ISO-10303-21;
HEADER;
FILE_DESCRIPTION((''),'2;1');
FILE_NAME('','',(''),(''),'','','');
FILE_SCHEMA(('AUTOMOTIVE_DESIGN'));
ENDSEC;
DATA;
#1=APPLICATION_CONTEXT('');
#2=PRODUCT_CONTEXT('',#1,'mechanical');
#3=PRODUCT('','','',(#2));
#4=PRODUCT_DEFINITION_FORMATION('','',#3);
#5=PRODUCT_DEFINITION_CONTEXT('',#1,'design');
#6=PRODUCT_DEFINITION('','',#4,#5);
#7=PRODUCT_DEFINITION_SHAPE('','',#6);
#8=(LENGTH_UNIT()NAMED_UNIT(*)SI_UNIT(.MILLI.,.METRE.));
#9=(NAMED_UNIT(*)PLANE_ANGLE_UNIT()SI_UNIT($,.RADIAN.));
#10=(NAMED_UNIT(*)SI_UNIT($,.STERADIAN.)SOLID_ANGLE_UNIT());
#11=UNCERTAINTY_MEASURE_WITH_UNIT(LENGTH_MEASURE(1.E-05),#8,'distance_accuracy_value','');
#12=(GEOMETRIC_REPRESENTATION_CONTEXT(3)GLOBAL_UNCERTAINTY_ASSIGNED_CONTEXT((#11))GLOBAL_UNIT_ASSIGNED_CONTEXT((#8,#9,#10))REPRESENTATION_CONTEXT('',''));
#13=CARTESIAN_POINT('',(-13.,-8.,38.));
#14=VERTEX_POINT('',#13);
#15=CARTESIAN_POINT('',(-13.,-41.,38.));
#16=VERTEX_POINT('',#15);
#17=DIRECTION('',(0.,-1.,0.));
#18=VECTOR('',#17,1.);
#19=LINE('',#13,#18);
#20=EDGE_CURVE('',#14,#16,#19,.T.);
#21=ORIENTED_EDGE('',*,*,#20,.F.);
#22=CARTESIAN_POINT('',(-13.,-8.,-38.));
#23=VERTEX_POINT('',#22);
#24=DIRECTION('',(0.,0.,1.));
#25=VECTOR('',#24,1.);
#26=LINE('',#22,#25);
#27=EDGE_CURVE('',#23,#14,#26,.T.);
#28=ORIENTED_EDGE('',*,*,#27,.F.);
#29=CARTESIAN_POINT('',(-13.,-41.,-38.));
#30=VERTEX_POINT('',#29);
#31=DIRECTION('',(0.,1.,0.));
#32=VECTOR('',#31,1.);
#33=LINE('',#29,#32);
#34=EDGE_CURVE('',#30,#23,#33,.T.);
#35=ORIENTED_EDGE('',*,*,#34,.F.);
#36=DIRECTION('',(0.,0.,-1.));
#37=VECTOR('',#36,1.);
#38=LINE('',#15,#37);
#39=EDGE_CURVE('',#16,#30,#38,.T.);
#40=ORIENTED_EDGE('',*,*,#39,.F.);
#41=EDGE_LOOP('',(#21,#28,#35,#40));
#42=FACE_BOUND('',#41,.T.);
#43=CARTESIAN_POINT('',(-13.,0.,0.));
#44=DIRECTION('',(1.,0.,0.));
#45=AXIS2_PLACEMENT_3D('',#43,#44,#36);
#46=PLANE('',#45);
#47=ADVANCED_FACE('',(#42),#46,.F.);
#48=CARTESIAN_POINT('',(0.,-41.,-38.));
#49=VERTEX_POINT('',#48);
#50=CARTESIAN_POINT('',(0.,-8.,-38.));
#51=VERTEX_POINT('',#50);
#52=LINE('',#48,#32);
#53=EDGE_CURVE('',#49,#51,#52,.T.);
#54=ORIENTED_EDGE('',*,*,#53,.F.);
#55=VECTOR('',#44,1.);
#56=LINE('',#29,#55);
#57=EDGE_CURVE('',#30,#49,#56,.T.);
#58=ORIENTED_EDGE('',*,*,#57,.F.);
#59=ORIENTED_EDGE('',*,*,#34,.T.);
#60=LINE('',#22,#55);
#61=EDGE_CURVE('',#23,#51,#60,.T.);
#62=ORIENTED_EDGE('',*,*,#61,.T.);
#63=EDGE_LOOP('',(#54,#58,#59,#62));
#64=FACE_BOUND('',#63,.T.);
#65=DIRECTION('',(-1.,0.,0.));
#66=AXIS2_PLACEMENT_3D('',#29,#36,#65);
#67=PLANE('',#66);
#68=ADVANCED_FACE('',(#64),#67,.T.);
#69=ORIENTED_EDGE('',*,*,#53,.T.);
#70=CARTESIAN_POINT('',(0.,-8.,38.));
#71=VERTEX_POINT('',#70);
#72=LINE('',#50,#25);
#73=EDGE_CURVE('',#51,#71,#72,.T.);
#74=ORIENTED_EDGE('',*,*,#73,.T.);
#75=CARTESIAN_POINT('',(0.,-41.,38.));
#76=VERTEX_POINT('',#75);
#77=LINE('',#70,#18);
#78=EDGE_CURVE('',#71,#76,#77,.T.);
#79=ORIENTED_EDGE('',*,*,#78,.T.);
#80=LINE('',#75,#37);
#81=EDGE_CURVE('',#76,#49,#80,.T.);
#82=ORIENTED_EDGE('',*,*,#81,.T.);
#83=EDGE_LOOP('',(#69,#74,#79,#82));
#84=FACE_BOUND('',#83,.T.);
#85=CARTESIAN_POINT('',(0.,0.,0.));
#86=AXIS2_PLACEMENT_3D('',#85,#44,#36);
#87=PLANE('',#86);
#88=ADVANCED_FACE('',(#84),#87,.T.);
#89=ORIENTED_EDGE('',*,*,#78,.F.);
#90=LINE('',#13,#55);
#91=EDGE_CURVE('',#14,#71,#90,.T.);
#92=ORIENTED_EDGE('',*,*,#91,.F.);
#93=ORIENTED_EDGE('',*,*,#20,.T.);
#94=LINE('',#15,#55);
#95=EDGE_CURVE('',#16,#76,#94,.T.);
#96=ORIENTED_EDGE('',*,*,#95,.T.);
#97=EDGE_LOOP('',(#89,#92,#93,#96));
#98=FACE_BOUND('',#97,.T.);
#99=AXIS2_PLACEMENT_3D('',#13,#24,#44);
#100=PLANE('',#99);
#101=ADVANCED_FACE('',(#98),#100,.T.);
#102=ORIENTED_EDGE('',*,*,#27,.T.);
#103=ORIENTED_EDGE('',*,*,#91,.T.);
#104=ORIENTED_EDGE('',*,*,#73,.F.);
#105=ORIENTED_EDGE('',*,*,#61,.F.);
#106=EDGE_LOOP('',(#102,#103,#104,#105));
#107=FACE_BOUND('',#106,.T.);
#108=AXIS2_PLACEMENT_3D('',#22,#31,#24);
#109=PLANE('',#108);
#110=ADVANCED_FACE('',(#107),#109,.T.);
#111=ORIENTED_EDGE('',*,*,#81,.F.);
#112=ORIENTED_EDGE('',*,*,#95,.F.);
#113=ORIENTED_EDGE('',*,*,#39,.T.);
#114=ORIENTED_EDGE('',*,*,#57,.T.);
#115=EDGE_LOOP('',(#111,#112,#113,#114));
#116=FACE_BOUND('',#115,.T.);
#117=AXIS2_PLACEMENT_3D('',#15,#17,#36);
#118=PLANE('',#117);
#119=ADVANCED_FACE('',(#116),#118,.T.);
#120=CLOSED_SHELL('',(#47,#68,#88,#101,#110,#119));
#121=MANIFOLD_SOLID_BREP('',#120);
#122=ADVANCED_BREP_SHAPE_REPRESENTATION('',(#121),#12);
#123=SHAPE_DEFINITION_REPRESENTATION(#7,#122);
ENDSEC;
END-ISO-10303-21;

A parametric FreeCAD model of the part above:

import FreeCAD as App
import Part
import Sketcher

doc = App.newDocument("Part")
body = doc.addObject("PartDesign::Body", "Body")

sketch1 = doc.addObject("Sketcher::SketchObject", "Sketch")
body.addObject(sketch1)
sketch1.AttachmentSupport = (doc.YZ_Plane, [""])
sketch1.MapMode = "FlatFace"
sketch1.addGeometry([
    Part.LineSegment(App.Vector(-8, 38, 0), App.Vector(-41, 38, 0)),
    Part.LineSegment(App.Vector(-41, 38, 0), App.Vector(-41, -38, 0)),
    Part.LineSegment(App.Vector(-41, -38, 0), App.Vector(-8, -38, 0)),
    Part.LineSegment(App.Vector(-8, -38, 0), App.Vector(-8, 38, 0)),
], False)
sketch1.addConstraint([
    Sketcher.Constraint("Coincident", 0, 2, 1, 1),
    Sketcher.Constraint("Coincident", 1, 2, 2, 1),
    Sketcher.Constraint("Coincident", 2, 2, 3, 1),
    Sketcher.Constraint("Coincident", 3, 2, 0, 1),
    Sketcher.Constraint("Horizontal", 0),
    Sketcher.Constraint("Vertical", 1),
    Sketcher.Constraint("Horizontal", 2),
    Sketcher.Constraint("Vertical", 3),
    Sketcher.Constraint("DistanceX", 0, 2, 0, 1, 33.0),
    Sketcher.Constraint("DistanceY", 1, 2, 1, 1, 76.0),
    Sketcher.Constraint("DistanceX", 0, 2, -1, 1, 41.0),
    Sketcher.Constraint("DistanceY", -1, 1, 0, 2, 38.0),
])
pad1 = doc.addObject("PartDesign::Pad", "Pad")
body.addObject(pad1)
pad1.Profile = sketch1
pad1.Length = 13
pad1.Reversed = True

doc.recompute()
